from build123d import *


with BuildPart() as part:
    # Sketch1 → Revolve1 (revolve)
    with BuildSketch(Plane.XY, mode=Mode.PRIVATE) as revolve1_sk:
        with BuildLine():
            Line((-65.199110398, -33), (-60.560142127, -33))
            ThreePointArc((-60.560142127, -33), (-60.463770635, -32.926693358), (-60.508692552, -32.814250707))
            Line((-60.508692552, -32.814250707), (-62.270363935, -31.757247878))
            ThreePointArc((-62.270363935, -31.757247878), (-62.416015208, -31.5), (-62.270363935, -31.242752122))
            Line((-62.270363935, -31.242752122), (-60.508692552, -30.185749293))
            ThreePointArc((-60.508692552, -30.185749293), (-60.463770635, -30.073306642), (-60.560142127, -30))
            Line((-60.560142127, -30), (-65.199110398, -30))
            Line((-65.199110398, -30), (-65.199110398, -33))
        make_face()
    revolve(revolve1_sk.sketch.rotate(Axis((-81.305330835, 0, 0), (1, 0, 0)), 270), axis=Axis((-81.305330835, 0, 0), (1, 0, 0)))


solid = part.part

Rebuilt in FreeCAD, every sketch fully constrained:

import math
import FreeCAD as App
import Part
import Sketcher

V = App.Vector

doc = App.newDocument("Part")
body = doc.addObject("PartDesign::Body", "Body")

# Sketch on XY plane
sketch1 = body.newObject("Sketcher::SketchObject", "Sketch")
sketch1.AttachmentSupport = (doc.getObject("XY_Plane"), [""])
sketch1.MapMode = "FlatFace"
sketch1.addGeometry([
    Part.LineSegment(V(-65.19911, -33, 0), V(-60.560142, -33, 0)),  # 0
    Part.ArcOfCircle(Part.Circle(V(-60.560142, -32.9, 0), V(0, 0, 1), 0.1), math.radians(-89.999999), math.radians(59.036243)),  # 1
    Part.LineSegment(V(-60.508693, -32.814251, 0), V(-62.270364, -31.757248, 0)),  # 2
    Part.ArcOfCircle(Part.Circle(V(-62.116015, -31.5, 0), V(0, 0, 1), 0.3), math.radians(120.963757), math.radians(239.036243)),  # 3
    Part.LineSegment(V(-62.270364, -31.242752, 0), V(-60.508693, -30.185749, 0)),  # 4
    Part.ArcOfCircle(Part.Circle(V(-60.560142, -30.1, 0), V(0, 0, 1), 0.1), math.radians(-59.036243), math.radians(89.999999)),  # 5
    Part.LineSegment(V(-60.560142, -30, 0), V(-65.19911, -30, 0)),  # 6
    Part.LineSegment(V(-65.19911, -30, 0), V(-65.19911, -33, 0)),  # 7
], False)
sketch1.addConstraint([
    Sketcher.Constraint("Tangent", 0, 2, 1, 1),
    Sketcher.Constraint("Tangent", 1, 2, 2, 1),
    Sketcher.Constraint("Tangent", 2, 2, 3, 2),
    Sketcher.Constraint("Tangent", 3, 1, 4, 1),
    Sketcher.Constraint("Tangent", 4, 2, 5, 1),
    Sketcher.Constraint("Tangent", 5, 2, 6, 1),
    Sketcher.Constraint("Coincident", 6, 2, 7, 1),
    Sketcher.Constraint("Coincident", 7, 2, 0, 1),
    Sketcher.Constraint("Horizontal", 0),
    Sketcher.Constraint("Horizontal", 6),
    Sketcher.Constraint("Vertical", 7),
    Sketcher.Constraint("Equal", 1, 5),
    Sketcher.Constraint("Vertical", 1, 3, 5, 3),
    Sketcher.Constraint("Vertical", 2, 2, 3, 1),
    Sketcher.Constraint("Radius", 1, 0.1),
    Sketcher.Constraint("Radius", 3, 0.3),
    Sketcher.Constraint("DistanceY", 7, 2, 7, 1, 3.0),
    Sketcher.Constraint("DistanceY", 0, 2, -1, 1, 33.0),
    Sketcher.Constraint("DistanceX", 0, 1, 0, 2, 4.638968),
    Sketcher.Constraint("DistanceY", 1, 2, 3, 1, 1.571499),
    Sketcher.Constraint("DistanceX", 6, 2, -1, 1, 65.19911),
])
revolution = body.newObject("PartDesign::Revolution", "Revolution")
revolution.Profile = sketch1
revolution.ReferenceAxis = (sketch1, ["H_Axis"])
revolution.Angle = 360

doc.recompute()
